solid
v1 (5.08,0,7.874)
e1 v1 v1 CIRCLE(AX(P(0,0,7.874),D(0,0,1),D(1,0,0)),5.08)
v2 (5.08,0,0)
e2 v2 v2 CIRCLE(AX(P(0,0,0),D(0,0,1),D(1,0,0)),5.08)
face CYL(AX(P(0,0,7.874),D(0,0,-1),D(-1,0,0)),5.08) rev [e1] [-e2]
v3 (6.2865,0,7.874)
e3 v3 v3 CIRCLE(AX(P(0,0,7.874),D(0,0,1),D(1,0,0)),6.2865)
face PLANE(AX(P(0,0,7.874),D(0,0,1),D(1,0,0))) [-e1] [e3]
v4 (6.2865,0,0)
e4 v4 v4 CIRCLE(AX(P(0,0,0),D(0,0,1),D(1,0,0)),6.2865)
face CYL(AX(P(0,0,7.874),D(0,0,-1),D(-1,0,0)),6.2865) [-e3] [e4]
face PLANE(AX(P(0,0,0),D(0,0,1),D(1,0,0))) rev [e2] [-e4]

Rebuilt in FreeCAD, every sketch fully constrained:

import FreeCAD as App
import Part
import Sketcher
Q = App.Units.Quantity

doc = App.newDocument("Part")
params = doc.addObject("Spreadsheet::Sheet", "Params")
for row, (alias, value) in enumerate([
    ("sketch1_diameter", "0.4 in"),
    ("sketch1_diameter2", "0.495 in"),
    ("pad1_length", "0.31 in"),
], start=1):
    params.set(f"A{row}", alias)
    params.set(f"B{row}", "=" + value)
    params.setAlias(f"B{row}", alias)

body = doc.addObject("PartDesign::Body", "Body")

# Sketch on XY plane
sketch1 = body.newObject("Sketcher::SketchObject", "Sketch")
sketch1.AttachmentSupport = (doc.getObject("XY_Plane"), [""])
sketch1.MapMode = "FlatFace"
sketch1.addGeometry([
    Part.Circle(App.Vector(0, 0, 0), App.Vector(0, 0, 1), 6),
    Part.Circle(App.Vector(0, 0, 0), App.Vector(0, 0, 1), 5),
], False)
sketch1.addConstraint([
    Sketcher.Constraint("Coincident", 0, 3, -1, 1),
    Sketcher.Constraint("Coincident", 1, 3, -1, 1),
    Sketcher.Constraint("Diameter", 1, Q("0.4 in")),
    Sketcher.Constraint("Diameter", 0, Q("0.495 in")),
])
sketch1.setExpression("Constraints[2]", "Params.sketch1_diameter")
sketch1.setExpression("Constraints[3]", "Params.sketch1_diameter2")
pad1 = body.newObject("PartDesign::Pad", "Pad")
pad1.Profile = sketch1
pad1.setExpression("Length", "Params.pad1_length")

doc.recompute()
